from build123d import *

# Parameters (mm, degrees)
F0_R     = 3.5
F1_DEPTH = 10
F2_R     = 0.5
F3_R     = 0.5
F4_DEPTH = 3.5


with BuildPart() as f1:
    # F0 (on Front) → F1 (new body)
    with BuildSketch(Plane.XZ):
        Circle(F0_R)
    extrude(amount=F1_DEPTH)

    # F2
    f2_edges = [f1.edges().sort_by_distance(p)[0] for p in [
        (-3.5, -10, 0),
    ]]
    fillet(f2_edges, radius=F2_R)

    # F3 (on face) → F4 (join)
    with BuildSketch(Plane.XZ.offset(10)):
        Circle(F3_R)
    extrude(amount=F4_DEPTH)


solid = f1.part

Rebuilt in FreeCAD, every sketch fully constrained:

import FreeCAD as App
import Part
import Sketcher
from FreeCAD import Vector


def edges_at(feature, points):
    """Names of the edges that pass closest to the given points."""
    edges = feature.Shape.Edges
    near = lambda p: min(range(len(edges)), key=lambda i: edges[i].distToShape(Part.Vertex(*p))[0])
    return sorted({f"Edge{near(p) + 1}" for p in points})

doc = App.newDocument("Part")
body = doc.addObject("PartDesign::Body", "Body")

# Sketch on XZ plane
sketch1 = body.newObject("Sketcher::SketchObject", "Sketch")
sketch1.AttachmentSupport = (doc.getObject("XZ_Plane"), [""])
sketch1.MapMode = "FlatFace"
sketch1.addGeometry(Part.Circle(Vector(0, 0, 0), Vector(0, 0, 1), 3.5), False)
sketch1.addConstraint(Sketcher.Constraint("Coincident", 0, 3, -1, 1))
sketch1.addConstraint(Sketcher.Constraint("Diameter", 0, 7.0))
pad1 = body.newObject("PartDesign::Pad", "Pad")
pad1.Profile = sketch1
pad1.Length = 10
doc.recompute()

fillet = body.newObject("PartDesign::Fillet", "Fillet")
fillet.Base = (pad1, edges_at(pad1, [(-3.5, -10, 0)]))
fillet.Radius = 0.5

# Sketch on XZ plane
sketch2 = body.newObject("Sketcher::SketchObject", "Sketch001")
sketch2.AttachmentSupport = (doc.getObject("XZ_Plane"), [""])
sketch2.MapMode = "FlatFace"
sketch2.AttachmentOffset = App.Placement(Vector(0, 0, 10), App.Rotation())
sketch2.addGeometry(Part.Circle(Vector(0, 0, 0), Vector(0, 0, 1), 0.5), False)
sketch2.addConstraint(Sketcher.Constraint("Coincident", 0, 3, -1, 1))
sketch2.addConstraint(Sketcher.Constraint("Diameter", 0, 1.0))
pad2 = body.newObject("PartDesign::Pad", "Pad001")
pad2.Profile = sketch2
pad2.Length = 3.5

doc.recompute()
